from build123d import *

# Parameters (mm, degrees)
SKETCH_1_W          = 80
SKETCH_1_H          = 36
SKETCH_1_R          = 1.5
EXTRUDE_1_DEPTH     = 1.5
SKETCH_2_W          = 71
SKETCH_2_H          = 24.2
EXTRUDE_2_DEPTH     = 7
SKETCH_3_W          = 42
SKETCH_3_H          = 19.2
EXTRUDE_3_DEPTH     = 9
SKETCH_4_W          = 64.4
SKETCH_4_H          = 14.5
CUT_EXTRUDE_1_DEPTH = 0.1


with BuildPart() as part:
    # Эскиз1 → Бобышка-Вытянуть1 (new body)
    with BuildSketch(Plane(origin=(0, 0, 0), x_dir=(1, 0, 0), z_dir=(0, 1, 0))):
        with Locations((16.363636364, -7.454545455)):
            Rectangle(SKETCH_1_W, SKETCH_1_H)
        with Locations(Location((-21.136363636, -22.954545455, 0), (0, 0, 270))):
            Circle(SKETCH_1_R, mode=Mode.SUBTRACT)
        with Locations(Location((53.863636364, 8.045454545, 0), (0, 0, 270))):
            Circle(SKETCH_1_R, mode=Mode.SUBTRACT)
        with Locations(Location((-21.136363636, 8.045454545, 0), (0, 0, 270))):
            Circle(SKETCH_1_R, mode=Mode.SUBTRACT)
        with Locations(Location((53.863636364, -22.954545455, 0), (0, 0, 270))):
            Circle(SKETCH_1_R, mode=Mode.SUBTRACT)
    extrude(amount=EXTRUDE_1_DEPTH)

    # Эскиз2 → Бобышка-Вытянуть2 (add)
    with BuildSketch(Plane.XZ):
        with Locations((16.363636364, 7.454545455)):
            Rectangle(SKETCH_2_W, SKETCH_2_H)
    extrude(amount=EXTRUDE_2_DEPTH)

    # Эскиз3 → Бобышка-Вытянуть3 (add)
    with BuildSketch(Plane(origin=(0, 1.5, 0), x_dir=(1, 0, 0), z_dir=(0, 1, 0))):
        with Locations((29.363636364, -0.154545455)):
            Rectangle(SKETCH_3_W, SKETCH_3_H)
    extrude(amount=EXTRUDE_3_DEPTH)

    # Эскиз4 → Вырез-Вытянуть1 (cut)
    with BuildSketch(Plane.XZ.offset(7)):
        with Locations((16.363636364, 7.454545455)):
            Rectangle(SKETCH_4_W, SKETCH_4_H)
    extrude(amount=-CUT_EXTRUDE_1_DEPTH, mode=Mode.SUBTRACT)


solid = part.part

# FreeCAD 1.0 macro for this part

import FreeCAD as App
import Part
import Sketcher

V = App.Vector

doc = App.newDocument("Part")
body = doc.addObject("PartDesign::Body", "Body")

# Sketch on XZ plane
sketch1 = body.newObject("Sketcher::SketchObject", "Sketch")
sketch1.AttachmentSupport = (doc.getObject("XZ_Plane"), [""])
sketch1.MapMode = "FlatFace"
sketch1.addGeometry([
    Part.LineSegment(V(-23.6, -10.5, 0), V(-23.6, 25.5, 0)),  # 0
    Part.LineSegment(V(-23.6, 25.5, 0), V(56.4, 25.5, 0)),  # 1
    Part.LineSegment(V(56.4, 25.5, 0), V(56.4, -10.5, 0)),  # 2
    Part.LineSegment(V(56.4, -10.5, 0), V(-23.6, -10.5, 0)),  # 3
    Part.Circle(V(-21.1, 23, 0), V(0, 0, 1), 1.5),  # 4
    Part.Circle(V(53.9, 23, 0), V(0, 0, 1), 1.5),  # 5
    Part.Circle(V(-21.1, -8, 0), V(0, 0, 1), 1.5),  # 6
    Part.Circle(V(53.9, -8, 0), V(0, 0, 1), 1.5),  # 7
], False)
sketch1.addConstraint([
    Sketcher.Constraint("Coincident", 0, 2, 1, 1),
    Sketcher.Constraint("Coincident", 1, 2, 2, 1),
    Sketcher.Constraint("Coincident", 2, 2, 3, 1),
    Sketcher.Constraint("Coincident", 3, 2, 0, 1),
    Sketcher.Constraint("Vertical", 0),
    Sketcher.Constraint("Horizontal", 1),
    Sketcher.Constraint("Vertical", 2),
    Sketcher.Constraint("Horizontal", 3),
    Sketcher.Constraint("Equal", 4, 5),
    Sketcher.Constraint("Equal", 5, 6),
    Sketcher.Constraint("Equal", 6, 7),
    Sketcher.Constraint("Horizontal", 4, 3, 5, 3),
    Sketcher.Constraint("Horizontal", 6, 3, 7, 3),
    Sketcher.Constraint("Vertical", 4, 3, 6, 3),
    Sketcher.Constraint("Vertical", 5, 3, 7, 3),
    Sketcher.Constraint("Diameter", 4, 3.0),
    Sketcher.Constraint("DistanceX", 1, 1, 1, 2, 80.0),
    Sketcher.Constraint("DistanceY", 0, 1, 0, 2, 36.0),
    Sketcher.Constraint("DistanceX", 4, 3, 5, 3, 75.0),
    Sketcher.Constraint("DistanceY", 6, 3, 4, 3, 31.0),
    Sketcher.Constraint("DistanceX", 0, 2, 4, 3, 2.5),
    Sketcher.Constraint("DistanceY", 4, 3, 0, 2, 2.5),
    Sketcher.Constraint("DistanceX", 4, 3, -1, 1, 21.136364),
    Sketcher.Constraint("DistanceY", -1, 1, 4, 3, 22.954545),
])
pad1 = body.newObject("PartDesign::Pad", "Pad")
pad1.Profile = sketch1
pad1.Length = 1.5
pad1.Reversed = True

# Sketch on XZ plane
sketch2 = body.newObject("Sketcher::SketchObject", "Sketch001")
sketch2.AttachmentSupport = (doc.getObject("XZ_Plane"), [""])
sketch2.MapMode = "FlatFace"
sketch2.addGeometry([
    Part.LineSegment(V(-19, 20, 0), V(-19, -5, 0)),
    Part.LineSegment(V(-19, -5, 0), V(52, -5, 0)),
    Part.LineSegment(V(52, -5, 0), V(52, 20, 0)),
    Part.LineSegment(V(52, 20, 0), V(-19, 20, 0)),
], False)
sketch2.addConstraint([
    Sketcher.Constraint("Coincident", 0, 2, 1, 1),
    Sketcher.Constraint("Coincident", 1, 2, 2, 1),
    Sketcher.Constraint("Coincident", 2, 2, 3, 1),
    Sketcher.Constraint("Coincident", 3, 2, 0, 1),
    Sketcher.Constraint("Vertical", 0),
    Sketcher.Constraint("Horizontal", 1),
    Sketcher.Constraint("Vertical", 2),
    Sketcher.Constraint("Horizontal", 3),
    Sketcher.Constraint("DistanceX", 1, 1, 1, 2, 71.0),
    Sketcher.Constraint("DistanceY", 0, 2, 0, 1, 24.2),
    Sketcher.Constraint("DistanceX", 0, 2, -1, 1, 19.136364),
    Sketcher.Constraint("DistanceY", 0, 2, -1, 1, 4.645455),
])
pad2 = body.newObject("PartDesign::Pad", "Pad001")
pad2.Profile = sketch2
pad2.Length = 7

# Sketch on XZ plane
sketch3 = body.newObject("Sketcher::SketchObject", "Sketch002")
sketch3.AttachmentSupport = (doc.getObject("XZ_Plane"), [""])
sketch3.MapMode = "FlatFace"
sketch3.AttachmentOffset = App.Placement(V(0, 0, -1.5), App.Rotation())
sketch3.addGeometry([
    Part.LineSegment(V(8, -9, 0), V(8, 10, 0)),
    Part.LineSegment(V(8, 10, 0), V(50, 10, 0)),
    Part.LineSegment(V(50, 10, 0), V(50, -9, 0)),
    Part.LineSegment(V(50, -9, 0), V(8, -9, 0)),
], False)
sketch3.addConstraint([
    Sketcher.Constraint("Coincident", 0, 2, 1, 1),
    Sketcher.Constraint("Coincident", 1, 2, 2, 1),
    Sketcher.Constraint("Coincident", 2, 2, 3, 1),
    Sketcher.Constraint("Coincident", 3, 2, 0, 1),
    Sketcher.Constraint("Vertical", 0),
    Sketcher.Constraint("Horizontal", 1),
    Sketcher.Constraint("Vertical", 2),
    Sketcher.Constraint("Horizontal", 3),
    Sketcher.Constraint("DistanceX", 1, 1, 1, 2, 42.0),
    Sketcher.Constraint("DistanceY", 0, 1, 0, 2, 19.2),
    Sketcher.Constraint("DistanceX", -1, 1, 0, 2, 8.363636),
    Sketcher.Constraint("DistanceY", -1, 1, 0, 2, 9.754545),
])
pad3 = body.newObject("PartDesign::Pad", "Pad002")
pad3.Profile = sketch3
pad3.Length = 9
pad3.Reversed = True

# Sketch on XZ plane
sketch4 = body.newObject("Sketcher::SketchObject", "Sketch003")
sketch4.AttachmentSupport = (doc.getObject("XZ_Plane"), [""])
sketch4.MapMode = "FlatFace"
sketch4.AttachmentOffset = App.Placement(V(0, 0, 7), App.Rotation())
sketch4.addGeometry([
    Part.LineSegment(V(-16, 15, 0), V(-16, 0, 0)),
    Part.LineSegment(V(-16, 0, 0), V(49, 0, 0)),
    Part.LineSegment(V(49, 0, 0), V(49, 15, 0)),
    Part.LineSegment(V(49, 15, 0), V(-16, 15, 0)),
], False)
sketch4.addConstraint([
    Sketcher.Constraint("Coincident", 0, 2, 1, 1),
    Sketcher.Constraint("Coincident", 1, 2, 2, 1),
    Sketcher.Constraint("Coincident", 2, 2, 3, 1),
    Sketcher.Constraint("Coincident", 3, 2, 0, 1),
    Sketcher.Constraint("Vertical", 0),
    Sketcher.Constraint("Horizontal", 1),
    Sketcher.Constraint("Vertical", 2),
    Sketcher.Constraint("Horizontal", 3),
    Sketcher.Constraint("DistanceX", 1, 1, 1, 2, 64.4),
    Sketcher.Constraint("DistanceY", 0, 2, 0, 1, 14.5),
    Sketcher.Constraint("DistanceX", 0, 2, -1, 1, 15.836364),
    Sketcher.Constraint("DistanceY", -1, 1, 0, 2, 0.204545),
])
pocket1 = body.newObject("PartDesign::Pocket", "Pocket")
pocket1.Profile = sketch4
pocket1.Length = 0.1

doc.recompute()
